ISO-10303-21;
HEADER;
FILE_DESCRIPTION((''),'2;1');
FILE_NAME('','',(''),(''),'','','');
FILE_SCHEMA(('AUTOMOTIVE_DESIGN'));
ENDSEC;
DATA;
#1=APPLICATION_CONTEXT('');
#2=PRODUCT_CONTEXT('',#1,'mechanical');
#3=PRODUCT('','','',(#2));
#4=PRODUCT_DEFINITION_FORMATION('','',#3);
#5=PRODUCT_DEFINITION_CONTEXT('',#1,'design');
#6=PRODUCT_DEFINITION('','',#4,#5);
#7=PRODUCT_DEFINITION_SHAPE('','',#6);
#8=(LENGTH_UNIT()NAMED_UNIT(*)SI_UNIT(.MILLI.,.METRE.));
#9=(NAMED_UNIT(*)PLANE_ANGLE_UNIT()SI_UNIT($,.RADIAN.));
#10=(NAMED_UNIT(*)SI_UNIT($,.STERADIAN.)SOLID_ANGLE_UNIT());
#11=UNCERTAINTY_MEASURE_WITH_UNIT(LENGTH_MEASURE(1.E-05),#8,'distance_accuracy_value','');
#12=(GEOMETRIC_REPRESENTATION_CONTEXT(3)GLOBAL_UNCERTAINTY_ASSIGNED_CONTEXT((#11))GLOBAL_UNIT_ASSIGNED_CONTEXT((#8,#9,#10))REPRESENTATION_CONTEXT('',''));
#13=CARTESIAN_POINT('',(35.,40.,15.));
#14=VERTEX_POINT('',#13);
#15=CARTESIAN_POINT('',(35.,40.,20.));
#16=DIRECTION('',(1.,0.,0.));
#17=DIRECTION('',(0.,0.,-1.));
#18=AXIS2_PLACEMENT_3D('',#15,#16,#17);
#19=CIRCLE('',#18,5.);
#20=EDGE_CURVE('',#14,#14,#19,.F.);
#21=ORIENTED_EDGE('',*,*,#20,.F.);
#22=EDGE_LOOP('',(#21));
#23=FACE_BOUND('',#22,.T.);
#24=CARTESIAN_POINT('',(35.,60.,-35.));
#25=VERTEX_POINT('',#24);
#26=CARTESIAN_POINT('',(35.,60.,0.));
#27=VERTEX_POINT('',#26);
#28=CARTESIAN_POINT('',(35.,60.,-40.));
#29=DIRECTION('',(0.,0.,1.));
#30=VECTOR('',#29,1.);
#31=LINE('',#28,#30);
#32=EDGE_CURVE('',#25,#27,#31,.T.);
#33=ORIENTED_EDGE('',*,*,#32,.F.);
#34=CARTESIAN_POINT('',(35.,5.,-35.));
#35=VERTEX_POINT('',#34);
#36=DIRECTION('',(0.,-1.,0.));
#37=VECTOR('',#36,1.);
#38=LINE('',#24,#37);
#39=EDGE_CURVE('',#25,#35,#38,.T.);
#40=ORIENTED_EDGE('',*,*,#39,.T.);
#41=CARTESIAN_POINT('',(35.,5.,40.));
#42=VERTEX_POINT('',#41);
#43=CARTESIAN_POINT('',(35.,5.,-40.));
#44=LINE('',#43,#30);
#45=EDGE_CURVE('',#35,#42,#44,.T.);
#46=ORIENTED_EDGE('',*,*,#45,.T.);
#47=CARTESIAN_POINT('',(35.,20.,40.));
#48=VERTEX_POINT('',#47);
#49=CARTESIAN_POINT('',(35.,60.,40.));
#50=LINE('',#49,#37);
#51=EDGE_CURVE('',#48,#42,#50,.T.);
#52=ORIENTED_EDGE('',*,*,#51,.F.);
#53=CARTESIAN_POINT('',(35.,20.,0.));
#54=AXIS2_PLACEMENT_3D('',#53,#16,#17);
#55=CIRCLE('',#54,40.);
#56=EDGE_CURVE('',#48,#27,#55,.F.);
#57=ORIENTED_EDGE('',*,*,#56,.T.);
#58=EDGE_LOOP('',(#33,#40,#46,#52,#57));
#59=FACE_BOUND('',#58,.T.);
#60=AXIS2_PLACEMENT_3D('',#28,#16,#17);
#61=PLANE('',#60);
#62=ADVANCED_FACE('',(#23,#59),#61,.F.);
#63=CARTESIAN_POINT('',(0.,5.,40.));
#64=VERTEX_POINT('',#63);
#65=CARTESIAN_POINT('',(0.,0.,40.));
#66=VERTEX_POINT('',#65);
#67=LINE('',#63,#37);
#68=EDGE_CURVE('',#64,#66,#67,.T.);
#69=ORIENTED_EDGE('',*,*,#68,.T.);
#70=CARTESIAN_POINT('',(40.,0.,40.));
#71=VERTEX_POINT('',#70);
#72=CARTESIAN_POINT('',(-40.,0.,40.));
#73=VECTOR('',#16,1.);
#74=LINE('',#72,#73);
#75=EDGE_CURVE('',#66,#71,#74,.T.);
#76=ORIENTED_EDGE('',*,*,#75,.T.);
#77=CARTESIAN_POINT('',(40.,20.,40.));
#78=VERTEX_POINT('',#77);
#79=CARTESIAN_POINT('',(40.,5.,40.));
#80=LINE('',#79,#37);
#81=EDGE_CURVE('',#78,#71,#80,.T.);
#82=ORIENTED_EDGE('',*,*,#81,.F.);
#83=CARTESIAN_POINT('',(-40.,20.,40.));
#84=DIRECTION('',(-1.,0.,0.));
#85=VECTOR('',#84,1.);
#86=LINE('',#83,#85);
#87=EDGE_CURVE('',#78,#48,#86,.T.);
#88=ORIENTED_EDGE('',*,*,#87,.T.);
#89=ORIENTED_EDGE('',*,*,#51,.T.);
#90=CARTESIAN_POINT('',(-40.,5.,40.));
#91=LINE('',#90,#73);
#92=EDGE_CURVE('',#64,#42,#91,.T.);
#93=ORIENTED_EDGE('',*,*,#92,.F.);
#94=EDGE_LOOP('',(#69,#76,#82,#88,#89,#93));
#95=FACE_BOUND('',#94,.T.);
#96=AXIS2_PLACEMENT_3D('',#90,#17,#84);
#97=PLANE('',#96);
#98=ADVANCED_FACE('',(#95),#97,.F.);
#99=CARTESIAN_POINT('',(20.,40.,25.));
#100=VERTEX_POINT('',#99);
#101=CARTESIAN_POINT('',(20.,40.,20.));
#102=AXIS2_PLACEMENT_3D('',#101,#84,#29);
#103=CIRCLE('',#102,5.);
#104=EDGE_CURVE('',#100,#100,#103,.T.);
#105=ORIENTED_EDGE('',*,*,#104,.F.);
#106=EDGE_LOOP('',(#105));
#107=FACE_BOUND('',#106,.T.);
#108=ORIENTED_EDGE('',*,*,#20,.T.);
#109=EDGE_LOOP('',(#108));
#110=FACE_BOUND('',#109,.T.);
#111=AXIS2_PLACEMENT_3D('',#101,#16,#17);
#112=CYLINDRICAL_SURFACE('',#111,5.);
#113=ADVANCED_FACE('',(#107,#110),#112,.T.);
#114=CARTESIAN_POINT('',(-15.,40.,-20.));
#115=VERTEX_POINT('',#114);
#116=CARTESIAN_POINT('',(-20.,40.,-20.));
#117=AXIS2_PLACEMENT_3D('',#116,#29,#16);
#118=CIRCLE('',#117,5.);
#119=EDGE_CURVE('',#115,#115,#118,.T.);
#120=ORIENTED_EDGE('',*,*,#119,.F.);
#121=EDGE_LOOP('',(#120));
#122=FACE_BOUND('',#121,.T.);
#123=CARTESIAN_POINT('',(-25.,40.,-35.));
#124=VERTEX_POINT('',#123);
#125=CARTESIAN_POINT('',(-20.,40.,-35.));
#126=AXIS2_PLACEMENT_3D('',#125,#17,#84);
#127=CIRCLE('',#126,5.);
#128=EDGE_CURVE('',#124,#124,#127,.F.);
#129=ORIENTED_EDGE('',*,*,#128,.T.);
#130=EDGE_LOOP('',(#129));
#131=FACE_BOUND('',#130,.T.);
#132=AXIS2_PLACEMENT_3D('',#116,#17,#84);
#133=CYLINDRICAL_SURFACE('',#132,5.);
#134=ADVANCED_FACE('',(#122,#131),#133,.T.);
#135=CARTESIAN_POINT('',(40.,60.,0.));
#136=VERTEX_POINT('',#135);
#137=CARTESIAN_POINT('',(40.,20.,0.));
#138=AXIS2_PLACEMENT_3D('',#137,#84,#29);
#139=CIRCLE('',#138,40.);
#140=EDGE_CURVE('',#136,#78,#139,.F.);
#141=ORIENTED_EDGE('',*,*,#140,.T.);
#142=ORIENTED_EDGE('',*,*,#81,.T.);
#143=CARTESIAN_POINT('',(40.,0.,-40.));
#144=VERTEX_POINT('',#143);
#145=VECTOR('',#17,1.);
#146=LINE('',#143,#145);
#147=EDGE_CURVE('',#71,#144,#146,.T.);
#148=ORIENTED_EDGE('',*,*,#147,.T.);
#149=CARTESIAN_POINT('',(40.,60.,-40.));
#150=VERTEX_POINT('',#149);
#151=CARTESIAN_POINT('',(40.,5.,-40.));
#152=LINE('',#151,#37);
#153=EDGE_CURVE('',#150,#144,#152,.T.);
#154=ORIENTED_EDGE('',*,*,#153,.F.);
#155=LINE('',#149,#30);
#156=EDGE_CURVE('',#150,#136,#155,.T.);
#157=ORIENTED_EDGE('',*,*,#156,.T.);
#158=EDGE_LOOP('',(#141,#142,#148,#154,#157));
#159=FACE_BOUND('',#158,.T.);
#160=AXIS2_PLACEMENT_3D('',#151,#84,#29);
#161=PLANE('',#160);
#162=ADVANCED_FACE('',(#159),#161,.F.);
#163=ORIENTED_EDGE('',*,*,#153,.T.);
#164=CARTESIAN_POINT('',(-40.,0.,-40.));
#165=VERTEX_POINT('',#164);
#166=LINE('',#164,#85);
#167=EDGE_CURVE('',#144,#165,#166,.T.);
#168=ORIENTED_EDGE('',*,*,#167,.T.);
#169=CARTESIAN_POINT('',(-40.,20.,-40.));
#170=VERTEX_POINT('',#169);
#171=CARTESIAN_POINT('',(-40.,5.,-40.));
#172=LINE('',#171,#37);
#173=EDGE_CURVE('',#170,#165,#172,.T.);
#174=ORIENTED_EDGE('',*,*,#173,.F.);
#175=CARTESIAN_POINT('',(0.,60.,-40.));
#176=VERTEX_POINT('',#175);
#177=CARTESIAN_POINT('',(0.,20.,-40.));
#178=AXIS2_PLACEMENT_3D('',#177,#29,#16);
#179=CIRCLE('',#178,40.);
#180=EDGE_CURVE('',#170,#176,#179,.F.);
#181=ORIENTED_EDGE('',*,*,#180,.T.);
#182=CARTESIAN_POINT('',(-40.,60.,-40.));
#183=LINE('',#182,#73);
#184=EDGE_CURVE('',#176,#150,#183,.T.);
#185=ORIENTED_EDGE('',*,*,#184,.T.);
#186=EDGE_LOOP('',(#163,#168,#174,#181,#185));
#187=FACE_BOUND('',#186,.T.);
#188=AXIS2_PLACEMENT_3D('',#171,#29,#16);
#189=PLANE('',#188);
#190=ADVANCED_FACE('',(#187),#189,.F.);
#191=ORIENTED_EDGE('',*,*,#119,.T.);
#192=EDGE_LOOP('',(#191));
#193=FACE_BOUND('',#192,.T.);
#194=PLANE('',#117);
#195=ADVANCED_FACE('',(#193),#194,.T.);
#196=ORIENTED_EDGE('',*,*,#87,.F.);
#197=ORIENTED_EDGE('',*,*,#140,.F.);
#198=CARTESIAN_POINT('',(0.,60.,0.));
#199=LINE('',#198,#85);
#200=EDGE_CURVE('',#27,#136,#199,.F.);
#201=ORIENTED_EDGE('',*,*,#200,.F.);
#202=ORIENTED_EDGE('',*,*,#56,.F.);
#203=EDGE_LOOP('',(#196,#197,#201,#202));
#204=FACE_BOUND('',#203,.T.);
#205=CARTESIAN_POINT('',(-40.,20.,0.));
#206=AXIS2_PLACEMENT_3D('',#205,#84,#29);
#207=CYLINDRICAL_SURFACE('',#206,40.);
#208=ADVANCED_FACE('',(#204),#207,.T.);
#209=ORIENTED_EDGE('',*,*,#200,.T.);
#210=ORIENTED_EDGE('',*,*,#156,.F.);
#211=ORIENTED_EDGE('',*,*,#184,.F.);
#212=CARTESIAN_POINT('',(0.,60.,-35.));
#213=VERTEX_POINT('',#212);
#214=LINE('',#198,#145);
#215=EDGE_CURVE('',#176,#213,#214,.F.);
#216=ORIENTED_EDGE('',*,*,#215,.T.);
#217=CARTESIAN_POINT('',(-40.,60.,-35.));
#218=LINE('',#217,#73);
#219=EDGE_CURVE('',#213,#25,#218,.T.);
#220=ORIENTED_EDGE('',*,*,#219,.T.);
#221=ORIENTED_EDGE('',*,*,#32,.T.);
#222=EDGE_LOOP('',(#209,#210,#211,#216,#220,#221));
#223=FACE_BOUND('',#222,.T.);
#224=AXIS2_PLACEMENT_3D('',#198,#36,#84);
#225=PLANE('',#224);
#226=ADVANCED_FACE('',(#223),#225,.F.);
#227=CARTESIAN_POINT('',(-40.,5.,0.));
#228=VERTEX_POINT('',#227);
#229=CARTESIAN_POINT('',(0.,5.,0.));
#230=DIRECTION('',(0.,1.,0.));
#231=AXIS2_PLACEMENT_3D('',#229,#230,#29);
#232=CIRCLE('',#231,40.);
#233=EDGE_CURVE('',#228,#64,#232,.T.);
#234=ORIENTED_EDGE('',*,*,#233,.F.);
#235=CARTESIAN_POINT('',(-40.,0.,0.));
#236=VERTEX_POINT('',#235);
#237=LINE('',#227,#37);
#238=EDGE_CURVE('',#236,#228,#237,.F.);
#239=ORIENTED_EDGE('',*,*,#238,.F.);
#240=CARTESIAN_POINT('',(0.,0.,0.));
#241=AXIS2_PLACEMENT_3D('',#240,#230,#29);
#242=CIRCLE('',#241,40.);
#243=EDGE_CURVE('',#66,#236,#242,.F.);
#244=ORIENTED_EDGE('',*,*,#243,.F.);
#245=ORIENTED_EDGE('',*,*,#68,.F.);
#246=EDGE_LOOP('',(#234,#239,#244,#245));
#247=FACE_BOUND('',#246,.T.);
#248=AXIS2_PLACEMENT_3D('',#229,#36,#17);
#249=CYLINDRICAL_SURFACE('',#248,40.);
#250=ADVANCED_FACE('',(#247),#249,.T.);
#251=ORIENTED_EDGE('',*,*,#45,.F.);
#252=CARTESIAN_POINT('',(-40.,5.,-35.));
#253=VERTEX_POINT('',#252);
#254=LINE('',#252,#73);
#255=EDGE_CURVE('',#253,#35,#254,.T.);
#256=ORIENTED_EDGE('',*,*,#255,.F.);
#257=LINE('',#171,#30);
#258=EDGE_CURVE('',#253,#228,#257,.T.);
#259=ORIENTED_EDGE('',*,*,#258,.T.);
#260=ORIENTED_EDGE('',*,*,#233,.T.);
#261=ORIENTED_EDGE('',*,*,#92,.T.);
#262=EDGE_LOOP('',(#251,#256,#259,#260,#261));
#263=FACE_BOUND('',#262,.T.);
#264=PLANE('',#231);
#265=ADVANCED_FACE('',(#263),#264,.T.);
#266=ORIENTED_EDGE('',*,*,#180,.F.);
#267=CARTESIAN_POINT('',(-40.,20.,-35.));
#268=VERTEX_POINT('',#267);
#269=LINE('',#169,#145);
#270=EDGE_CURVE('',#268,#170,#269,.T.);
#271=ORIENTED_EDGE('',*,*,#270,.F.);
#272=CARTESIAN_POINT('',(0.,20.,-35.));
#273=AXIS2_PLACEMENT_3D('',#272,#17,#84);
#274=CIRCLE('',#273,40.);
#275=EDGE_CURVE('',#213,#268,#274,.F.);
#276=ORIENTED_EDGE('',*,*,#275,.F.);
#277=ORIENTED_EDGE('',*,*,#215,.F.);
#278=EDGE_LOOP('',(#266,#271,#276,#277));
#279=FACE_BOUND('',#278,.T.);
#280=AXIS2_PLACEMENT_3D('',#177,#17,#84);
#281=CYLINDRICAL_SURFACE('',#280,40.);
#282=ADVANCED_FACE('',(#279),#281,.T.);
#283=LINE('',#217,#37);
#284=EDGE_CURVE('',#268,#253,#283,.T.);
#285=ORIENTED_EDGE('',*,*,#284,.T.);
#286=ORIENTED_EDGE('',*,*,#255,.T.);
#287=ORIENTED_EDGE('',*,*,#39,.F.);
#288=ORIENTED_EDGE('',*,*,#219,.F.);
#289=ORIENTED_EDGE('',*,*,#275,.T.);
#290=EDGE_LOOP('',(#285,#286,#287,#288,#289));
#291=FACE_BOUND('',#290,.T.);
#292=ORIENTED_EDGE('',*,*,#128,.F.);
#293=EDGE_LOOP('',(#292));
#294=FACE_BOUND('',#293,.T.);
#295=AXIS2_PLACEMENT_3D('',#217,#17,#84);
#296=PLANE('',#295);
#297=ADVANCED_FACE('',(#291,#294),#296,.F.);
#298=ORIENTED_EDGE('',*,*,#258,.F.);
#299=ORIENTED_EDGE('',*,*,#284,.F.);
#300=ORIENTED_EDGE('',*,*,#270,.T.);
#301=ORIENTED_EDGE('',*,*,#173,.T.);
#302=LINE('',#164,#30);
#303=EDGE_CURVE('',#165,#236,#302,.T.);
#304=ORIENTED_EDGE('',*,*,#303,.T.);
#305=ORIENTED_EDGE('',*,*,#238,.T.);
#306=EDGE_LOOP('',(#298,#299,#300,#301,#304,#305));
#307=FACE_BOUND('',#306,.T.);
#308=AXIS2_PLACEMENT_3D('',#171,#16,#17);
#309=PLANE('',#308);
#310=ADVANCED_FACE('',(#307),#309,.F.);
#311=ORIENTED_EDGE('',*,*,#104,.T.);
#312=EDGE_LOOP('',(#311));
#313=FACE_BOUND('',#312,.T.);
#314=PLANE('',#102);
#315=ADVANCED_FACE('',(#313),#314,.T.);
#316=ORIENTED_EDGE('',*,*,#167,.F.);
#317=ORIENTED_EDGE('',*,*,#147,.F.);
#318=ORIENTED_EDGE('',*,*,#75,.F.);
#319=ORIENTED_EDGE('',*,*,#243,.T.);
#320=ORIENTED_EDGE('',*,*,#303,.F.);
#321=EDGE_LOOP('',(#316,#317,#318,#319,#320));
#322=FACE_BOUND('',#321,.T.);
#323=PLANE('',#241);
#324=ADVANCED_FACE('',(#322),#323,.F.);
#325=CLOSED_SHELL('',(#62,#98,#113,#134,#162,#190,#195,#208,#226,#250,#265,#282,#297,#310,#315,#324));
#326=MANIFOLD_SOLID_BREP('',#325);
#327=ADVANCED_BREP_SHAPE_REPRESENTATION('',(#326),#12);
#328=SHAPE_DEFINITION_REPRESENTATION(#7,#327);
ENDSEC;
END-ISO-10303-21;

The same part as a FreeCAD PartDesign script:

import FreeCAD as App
import Part
import Sketcher
from FreeCAD import Vector
Q = App.Units.Quantity


def edges_at(feature, points):
    """Names of the edges that pass closest to the given points."""
    edges = feature.Shape.Edges
    near = lambda p: min(range(len(edges)), key=lambda i: edges[i].distToShape(Part.Vertex(*p))[0])
    return sorted({f"Edge{near(p) + 1}" for p in points})

doc = App.newDocument("Part")
params = doc.addObject("Spreadsheet::Sheet", "Params")
for row, (alias, value) in enumerate([
    ("sketch1_width", "80 mm"),
    ("pad1_length", "5 mm"),
    ("sketch2_width", "80 mm"),
    ("sketch2_width2", "75 mm"),
    ("pad2_length", "55 mm"),
    ("fillet_radius", "40 mm"),
    ("sketch3_diameter", "10 mm"),
    ("pad3_length", "15 mm"),
    ("sketch4_diameter", "10 mm"),
    ("pad4_length", "15 mm"),
], start=1):
    params.set(f"A{row}", alias)
    params.set(f"B{row}", "=" + value)
    params.setAlias(f"B{row}", alias)

body = doc.addObject("PartDesign::Body", "Body")

# Sketch on XZ plane
sketch1 = body.newObject("Sketcher::SketchObject", "Sketch")
sketch1.AttachmentSupport = (doc.getObject("XZ_Plane"), [""])
sketch1.MapMode = "FlatFace"
sketch1.addGeometry(Part.LineSegment(Vector(-40, -40, 0), Vector(-40, 40, 0)), False)
sketch1.addGeometry(Part.LineSegment(Vector(-40, 40, 0), Vector(40, 40, 0)), False)
sketch1.addGeometry(Part.LineSegment(Vector(40, 40, 0), Vector(40, -40, 0)), False)
sketch1.addGeometry(Part.LineSegment(Vector(40, -40, 0), Vector(-40, -40, 0)), False)
sketch1.addConstraint(Sketcher.Constraint("Coincident", 0, 2, 1, 1))
sketch1.addConstraint(Sketcher.Constraint("Coincident", 1, 2, 2, 1))
sketch1.addConstraint(Sketcher.Constraint("Coincident", 2, 2, 3, 1))
sketch1.addConstraint(Sketcher.Constraint("Coincident", 3, 2, 0, 1))
sketch1.addConstraint(Sketcher.Constraint("Vertical", 0))
sketch1.addConstraint(Sketcher.Constraint("Horizontal", 1))
sketch1.addConstraint(Sketcher.Constraint("Vertical", 2))
sketch1.addConstraint(Sketcher.Constraint("Horizontal", 3))
sketch1.addConstraint(Sketcher.Constraint("Symmetric", 0, 2, 2, 2, -1, 1))
sketch1.addConstraint(Sketcher.Constraint("Equal", 3, 0))
sketch1.addConstraint(Sketcher.Constraint("DistanceX", 1, 1, 1, 2, Q("80 mm")))
sketch1.setExpression("Constraints[10]", "Params.sketch1_width")
pad1 = body.newObject("PartDesign::Pad", "Pad")
pad1.Profile = sketch1
pad1.setExpression("Length", "Params.pad1_length")
pad1.Reversed = True

# Sketch on XZ plane
sketch2 = body.newObject("Sketcher::SketchObject", "Sketch001")
sketch2.AttachmentSupport = (doc.getObject("XZ_Plane"), [""])
sketch2.MapMode = "FlatFace"
sketch2.AttachmentOffset = App.Placement(Vector(0, 0, -5), App.Rotation())
sketch2.addGeometry(Part.LineSegment(Vector(40, -40, 0), Vector(-40, -40, 0)), False)
sketch2.addGeometry(Part.LineSegment(Vector(-40, -40, 0), Vector(-40, -35, 0)), False)
sketch2.addGeometry(Part.LineSegment(Vector(-40, -35, 0), Vector(35, -35, 0)), False)
sketch2.addGeometry(Part.LineSegment(Vector(35, -35, 0), Vector(35, 40, 0)), False)
sketch2.addGeometry(Part.LineSegment(Vector(35, 40, 0), Vector(40, 40, 0)), False)
sketch2.addGeometry(Part.LineSegment(Vector(40, 40, 0), Vector(40, -40, 0)), False)
sketch2.addConstraint(Sketcher.Constraint("Coincident", 0, 2, 1, 1))
sketch2.addConstraint(Sketcher.Constraint("Coincident", 1, 2, 2, 1))
sketch2.addConstraint(Sketcher.Constraint("Coincident", 2, 2, 3, 1))
sketch2.addConstraint(Sketcher.Constraint("Coincident", 3, 2, 4, 1))
sketch2.addConstraint(Sketcher.Constraint("Coincident", 4, 2, 5, 1))
sketch2.addConstraint(Sketcher.Constraint("Coincident", 5, 2, 0, 1))
sketch2.addConstraint(Sketcher.Constraint("Horizontal", 0))
sketch2.addConstraint(Sketcher.Constraint("Vertical", 1))
sketch2.addConstraint(Sketcher.Constraint("Horizontal", 2))
sketch2.addConstraint(Sketcher.Constraint("Vertical", 3))
sketch2.addConstraint(Sketcher.Constraint("Horizontal", 4))
sketch2.addConstraint(Sketcher.Constraint("Vertical", 5))
sketch2.addConstraint(Sketcher.Constraint("Symmetric", 0, 2, 4, 2, -1, 1))
sketch2.addConstraint(Sketcher.Constraint("Equal", 4, 1))
sketch2.addConstraint(Sketcher.Constraint("Equal", 2, 3))
sketch2.addConstraint(Sketcher.Constraint("DistanceX", 0, 2, 0, 1, Q("80 mm")))
sketch2.addConstraint(Sketcher.Constraint("DistanceX", 2, 1, 2, 2, Q("75 mm")))
sketch2.setExpression("Constraints[15]", "Params.sketch2_width")
sketch2.setExpression("Constraints[16]", "Params.sketch2_width2")
pad2 = body.newObject("PartDesign::Pad", "Pad001")
pad2.Profile = sketch2
pad2.setExpression("Length", "Params.pad2_length")
pad2.Reversed = True
doc.recompute()

fillet = body.newObject("PartDesign::Fillet", "Fillet")
fillet.Base = (pad2, edges_at(pad2, [(37.5, 60, 40), (-40, 60, -37.5), (-40, 2.5, 40)]))
fillet.setExpression("Radius", "Params.fillet_radius")

# Sketch on YZ plane
sketch3 = body.newObject("Sketcher::SketchObject", "Sketch002")
sketch3.AttachmentSupport = (doc.getObject("YZ_Plane"), [""])
sketch3.MapMode = "FlatFace"
sketch3.AttachmentOffset = App.Placement(Vector(0, 0, 35), App.Rotation())
sketch3.addGeometry(Part.Circle(Vector(40, 20, 0), Vector(0, 0, 1), 5), False)
sketch3.addConstraint(Sketcher.Constraint("Diameter", 0, Q("10 mm")))
sketch3.addConstraint(Sketcher.Constraint("DistanceX", -1, 1, 0, 3, Q("40 mm")))
sketch3.addConstraint(Sketcher.Constraint("DistanceY", -1, 1, 0, 3, Q("20 mm")))
sketch3.setExpression("Constraints[0]", "Params.sketch3_diameter")
pad3 = body.newObject("PartDesign::Pad", "Pad002")
pad3.Profile = sketch3
pad3.setExpression("Length", "Params.pad3_length")
pad3.Reversed = True

# Sketch on XY plane
sketch4 = body.newObject("Sketcher::SketchObject", "Sketch003")
sketch4.AttachmentSupport = (doc.getObject("XY_Plane"), [""])
sketch4.MapMode = "FlatFace"
sketch4.AttachmentOffset = App.Placement(Vector(0, 0, -35), App.Rotation())
sketch4.addGeometry(Part.Circle(Vector(-20, 40, 0), Vector(0, 0, 1), 5), False)
sketch4.addConstraint(Sketcher.Constraint("Diameter", 0, Q("10 mm")))
sketch4.addConstraint(Sketcher.Constraint("DistanceX", 0, 3, -1, 1, Q("20 mm")))
sketch4.addConstraint(Sketcher.Constraint("DistanceY", -1, 1, 0, 3, Q("40 mm")))
sketch4.setExpression("Constraints[0]", "Params.sketch4_diameter")
pad4 = body.newObject("PartDesign::Pad", "Pad003")
pad4.Profile = sketch4
pad4.setExpression("Length", "Params.pad4_length")

doc.recompute()
